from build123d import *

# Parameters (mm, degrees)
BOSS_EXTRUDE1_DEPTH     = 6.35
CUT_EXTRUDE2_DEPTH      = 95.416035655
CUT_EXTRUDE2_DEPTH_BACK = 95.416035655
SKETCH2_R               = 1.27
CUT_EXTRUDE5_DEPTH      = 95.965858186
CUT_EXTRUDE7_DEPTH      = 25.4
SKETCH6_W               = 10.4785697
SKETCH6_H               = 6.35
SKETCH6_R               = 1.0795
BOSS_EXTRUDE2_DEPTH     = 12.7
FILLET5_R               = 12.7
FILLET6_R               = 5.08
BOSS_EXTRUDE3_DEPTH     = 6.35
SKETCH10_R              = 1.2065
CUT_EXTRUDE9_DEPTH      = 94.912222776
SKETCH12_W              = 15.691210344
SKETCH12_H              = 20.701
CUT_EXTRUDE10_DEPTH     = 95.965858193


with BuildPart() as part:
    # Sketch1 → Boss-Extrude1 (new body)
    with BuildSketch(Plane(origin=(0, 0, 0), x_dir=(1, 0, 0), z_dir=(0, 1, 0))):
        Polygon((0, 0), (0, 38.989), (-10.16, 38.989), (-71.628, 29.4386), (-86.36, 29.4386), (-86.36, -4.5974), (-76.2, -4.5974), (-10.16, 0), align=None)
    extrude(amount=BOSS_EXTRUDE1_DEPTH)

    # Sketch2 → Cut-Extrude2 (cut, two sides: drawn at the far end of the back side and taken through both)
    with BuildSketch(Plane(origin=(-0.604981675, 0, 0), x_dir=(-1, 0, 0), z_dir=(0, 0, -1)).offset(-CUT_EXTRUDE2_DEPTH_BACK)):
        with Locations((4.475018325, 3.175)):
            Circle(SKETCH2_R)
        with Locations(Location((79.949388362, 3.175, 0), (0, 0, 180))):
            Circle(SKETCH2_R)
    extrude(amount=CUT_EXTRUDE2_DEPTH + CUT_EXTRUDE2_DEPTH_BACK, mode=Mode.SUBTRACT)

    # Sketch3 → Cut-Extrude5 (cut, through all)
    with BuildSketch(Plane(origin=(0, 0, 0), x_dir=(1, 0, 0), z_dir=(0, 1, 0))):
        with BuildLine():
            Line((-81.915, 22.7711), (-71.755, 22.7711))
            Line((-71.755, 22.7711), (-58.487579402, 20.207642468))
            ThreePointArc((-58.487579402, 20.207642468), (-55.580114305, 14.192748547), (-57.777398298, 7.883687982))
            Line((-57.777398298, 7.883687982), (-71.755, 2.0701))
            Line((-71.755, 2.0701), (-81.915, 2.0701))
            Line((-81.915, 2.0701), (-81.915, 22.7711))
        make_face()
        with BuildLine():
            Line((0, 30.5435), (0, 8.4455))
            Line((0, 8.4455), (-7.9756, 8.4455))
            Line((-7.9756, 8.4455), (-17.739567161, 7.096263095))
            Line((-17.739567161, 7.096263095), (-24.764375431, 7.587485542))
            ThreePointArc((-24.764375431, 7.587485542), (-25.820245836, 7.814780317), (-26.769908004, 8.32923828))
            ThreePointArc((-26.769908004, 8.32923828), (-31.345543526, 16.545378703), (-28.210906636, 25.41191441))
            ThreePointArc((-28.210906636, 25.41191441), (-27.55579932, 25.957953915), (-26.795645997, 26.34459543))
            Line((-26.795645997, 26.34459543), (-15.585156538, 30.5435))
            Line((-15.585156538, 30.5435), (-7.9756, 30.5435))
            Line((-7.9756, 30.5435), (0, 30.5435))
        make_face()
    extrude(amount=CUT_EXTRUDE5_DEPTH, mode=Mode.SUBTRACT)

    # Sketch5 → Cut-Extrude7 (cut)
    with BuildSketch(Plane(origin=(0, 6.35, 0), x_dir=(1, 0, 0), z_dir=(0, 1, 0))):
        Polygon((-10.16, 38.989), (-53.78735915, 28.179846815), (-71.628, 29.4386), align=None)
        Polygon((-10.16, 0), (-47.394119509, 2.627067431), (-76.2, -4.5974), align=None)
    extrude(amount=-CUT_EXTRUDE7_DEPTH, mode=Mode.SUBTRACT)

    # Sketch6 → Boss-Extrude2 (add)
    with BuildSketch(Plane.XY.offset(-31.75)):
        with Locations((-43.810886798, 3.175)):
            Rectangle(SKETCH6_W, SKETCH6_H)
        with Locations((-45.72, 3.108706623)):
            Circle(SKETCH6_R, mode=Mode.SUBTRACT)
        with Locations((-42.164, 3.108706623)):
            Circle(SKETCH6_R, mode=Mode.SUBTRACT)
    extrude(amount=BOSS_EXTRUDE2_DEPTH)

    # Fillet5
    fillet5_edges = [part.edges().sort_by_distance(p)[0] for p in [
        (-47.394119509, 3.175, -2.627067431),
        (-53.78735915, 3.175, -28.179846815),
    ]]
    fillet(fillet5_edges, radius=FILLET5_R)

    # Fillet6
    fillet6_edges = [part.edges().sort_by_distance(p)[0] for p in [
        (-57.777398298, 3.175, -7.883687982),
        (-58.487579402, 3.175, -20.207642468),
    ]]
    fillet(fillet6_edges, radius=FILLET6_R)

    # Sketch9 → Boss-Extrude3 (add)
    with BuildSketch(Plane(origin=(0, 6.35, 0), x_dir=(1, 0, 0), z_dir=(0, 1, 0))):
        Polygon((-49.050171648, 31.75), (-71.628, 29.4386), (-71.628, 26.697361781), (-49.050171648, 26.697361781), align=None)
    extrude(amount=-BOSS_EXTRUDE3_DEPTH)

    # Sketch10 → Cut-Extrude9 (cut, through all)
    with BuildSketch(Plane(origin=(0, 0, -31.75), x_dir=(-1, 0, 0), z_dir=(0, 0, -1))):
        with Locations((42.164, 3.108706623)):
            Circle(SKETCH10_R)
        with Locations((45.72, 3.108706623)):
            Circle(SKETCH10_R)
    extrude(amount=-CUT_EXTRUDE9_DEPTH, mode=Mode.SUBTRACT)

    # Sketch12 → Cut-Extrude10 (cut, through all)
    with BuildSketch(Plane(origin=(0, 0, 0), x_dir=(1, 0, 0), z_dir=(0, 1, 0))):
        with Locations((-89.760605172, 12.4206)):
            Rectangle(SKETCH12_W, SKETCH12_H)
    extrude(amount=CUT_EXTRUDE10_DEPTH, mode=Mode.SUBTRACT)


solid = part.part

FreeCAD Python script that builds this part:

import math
import FreeCAD as App
import Part
import Sketcher
from FreeCAD import Vector
Q = App.Units.Quantity


def edges_at(feature, points):
    """Names of the edges that pass closest to the given points."""
    edges = feature.Shape.Edges
    near = lambda p: min(range(len(edges)), key=lambda i: edges[i].distToShape(Part.Vertex(*p))[0])
    return sorted({f"Edge{near(p) + 1}" for p in points})


def add_polygon(sketch, points):
    """Adds a closed chain of lines whose ends are joined by coincident constraints."""
    first, n = sketch.GeometryCount, len(points)
    for a, b in zip(points, points[1:] + points[:1]):
        sketch.addGeometry(Part.LineSegment(App.Vector(*a, 0), App.Vector(*b, 0)), False)
    for i in range(n):
        sketch.addConstraint(Sketcher.Constraint("Coincident", first + i, 2, first + (i + 1) % n, 1))

doc = App.newDocument("Part")
params = doc.addObject("Spreadsheet::Sheet", "Params")
for row, (alias, value) in enumerate([
    ("sketch1_width", "0.4 in"),
    ("sketch1_width2", "0.58 in"),
    ("sketch1_height", "1.34 in"),
    ("sketch1_height2", "1.535 in"),
    ("pad1_length", "0.25 in"),
    ("sketch2_diameter", "0.1 in"),
    ("sketch3_radius", "0.15 in"),
    ("sketch3_radius2", "0.45 in"),
    ("sketch3_width", "0.4 in"),
    ("sketch3_height", "0.87 in"),
    ("sketch3_width2", "0.314 in"),
    ("pocket3_length", "1 in"),
    ("sketch5_diameter", "0.085 in"),
    ("sketch5_height", "0.25 in"),
    ("pad2_length", "0.5 in"),
    ("fillet_radius", "0.5 in"),
    ("fillet2_radius", "0.2 in"),
    ("pad3_length", "0.25 in"),
    ("sketch7_diameter", "0.095 in"),
    ("sketch8_height", "0.815 in"),
], start=1):
    params.set(f"A{row}", alias)
    params.set(f"B{row}", "=" + value)
    params.setAlias(f"B{row}", alias)

body = doc.addObject("PartDesign::Body", "Body")

# Sketch on XZ plane
sketch1 = body.newObject("Sketcher::SketchObject", "Sketch")
sketch1.AttachmentSupport = (doc.getObject("XZ_Plane"), [""])
sketch1.MapMode = "FlatFace"
add_polygon(sketch1, [(0, 0), (0, -39), (-10, -39), (-72, -29), (-86, -29), (-86, 5), (-76, 5), (-10, 0)])  # lines 0-7
sketch1.addConstraint(Sketcher.Constraint("Vertical", 0))
sketch1.addConstraint(Sketcher.Constraint("Horizontal", 1))
sketch1.addConstraint(Sketcher.Constraint("Horizontal", 3))
sketch1.addConstraint(Sketcher.Constraint("Vertical", 4))
sketch1.addConstraint(Sketcher.Constraint("Horizontal", 5))
sketch1.addConstraint(Sketcher.Constraint("Horizontal", 7))
sketch1.addConstraint(Sketcher.Constraint("Coincident", 7, 2, -1, 1))
sketch1.addConstraint(Sketcher.Constraint("Vertical", 1, 2, 6, 2))
sketch1.addConstraint(Sketcher.Constraint("Equal", 1, 5))
sketch1.addConstraint(Sketcher.Constraint("DistanceX", 1, 2, 1, 1, Q("0.4 in")))
sketch1.addConstraint(Sketcher.Constraint("DistanceX", 5, 2, -1, 1, Q("3 in")))
sketch1.addConstraint(Sketcher.Constraint("DistanceX", 3, 2, 3, 1, Q("0.58 in")))
sketch1.addConstraint(Sketcher.Constraint("DistanceY", 4, 1, 4, 2, Q("1.34 in")))
sketch1.addConstraint(Sketcher.Constraint("DistanceY", 0, 2, 0, 1, Q("1.535 in")))
sketch1.addConstraint(Sketcher.Constraint("DistanceY", 2, 2, -1, 1, Q("1.159 in")))
sketch1.setExpression("Constraints[17]", "Params.sketch1_width")
sketch1.setExpression("Constraints[19]", "Params.sketch1_width2")
sketch1.setExpression("Constraints[20]", "Params.sketch1_height")
sketch1.setExpression("Constraints[21]", "Params.sketch1_height2")
pad1 = body.newObject("PartDesign::Pad", "Pad")
pad1.Profile = sketch1
pad1.setExpression("Length", "Params.pad1_length")
pad1.Reversed = True

# Sketch on XY plane
sketch2 = body.newObject("Sketcher::SketchObject", "Sketch001")
sketch2.AttachmentSupport = (doc.getObject("XY_Plane"), [""])
sketch2.MapMode = "FlatFace"
sketch2.addGeometry(Part.Circle(Vector(-5.1, 3.2, 0), Vector(0, 0, 1), 1.3), False)
sketch2.addGeometry(Part.Circle(Vector(-80.6, 3.2, 0), Vector(0, 0, 1), 1.3), False)
sketch2.addConstraint(Sketcher.Constraint("Equal", 0, 1))
sketch2.addConstraint(Sketcher.Constraint("Horizontal", 0, 3, 1, 3))
sketch2.addConstraint(Sketcher.Constraint("Diameter", 0, Q("0.1 in")))
sketch2.addConstraint(Sketcher.Constraint("DistanceX", 0, 3, -1, 1, Q("0.2 in")))
sketch2.addConstraint(Sketcher.Constraint("DistanceY", -1, 1, 0, 3, Q("0.125 in")))
sketch2.addConstraint(Sketcher.Constraint("DistanceX", 1, 3, -1, 1, 80.55437))
sketch2.setExpression("Constraints[2]", "Params.sketch2_diameter")
pocket1 = body.newObject("PartDesign::Pocket", "Pocket")
pocket1.Profile = sketch2
pocket1.Type = "ThroughAll"
pocket1.Midplane = True

# Sketch on XZ plane
sketch3 = body.newObject("Sketcher::SketchObject", "Sketch002")
sketch3.AttachmentSupport = (doc.getObject("XZ_Plane"), [""])
sketch3.MapMode = "FlatFace"
sketch3.addGeometry(Part.LineSegment(Vector(-71.8, -22.8, 0), Vector(-81.9, -22.8, 0)), False)
sketch3.addGeometry(Part.LineSegment(Vector(-81.9, -22.8, 0), Vector(-81.9, -2.1, 0)), False)
sketch3.addGeometry(Part.LineSegment(Vector(-81.9, -2.1, 0), Vector(-71.8, -2.1, 0)), False)
sketch3.addGeometry(Part.LineSegment(Vector(-71.8, -2.1, 0), Vector(-57.8, -7.9, 0)), False)
sketch3.addGeometry(Part.ArcOfCircle(Part.Circle(Vector(-64.3, -13.7, 0), Vector(0, 0, 1), 8.7), math.radians(-48), math.radians(42)), False)
sketch3.addGeometry(Part.LineSegment(Vector(-58.5, -20.2, 0), Vector(-71.8, -22.8, 0)), False)
sketch3.addGeometry(Part.LineSegment(Vector(0, -8.4, 0), Vector(0, -30.5, 0)), False)
sketch3.addGeometry(Part.LineSegment(Vector(0, -30.5, 0), Vector(-15.6, -30.5, 0)), False)
sketch3.addGeometry(Part.LineSegment(Vector(-15.6, -30.5, 0), Vector(-26.8, -26.3, 0)), False)
sketch3.addGeometry(Part.ArcOfCircle(Part.Circle(Vector(-25.5, -22.8, 0), Vector(0, 0, 1), 3.8), math.radians(-136), math.radians(-111)), False)
sketch3.addGeometry(Part.ArcOfCircle(Part.Circle(Vector(-20, -17.5, 0), Vector(0, 0, 1), 11.4), math.radians(127), math.radians(224)), False)
sketch3.addGeometry(Part.ArcOfCircle(Part.Circle(Vector(-24.5, -11.4, 0), Vector(0, 0, 1), 3.8), math.radians(94), math.radians(127)), False)
sketch3.addGeometry(Part.LineSegment(Vector(-24.8, -7.6, 0), Vector(-17.7, -7.1, 0)), False)
sketch3.addGeometry(Part.LineSegment(Vector(-17.7, -7.1, 0), Vector(-8, -8.4, 0)), False)
sketch3.addGeometry(Part.LineSegment(Vector(-8, -8.4, 0), Vector(0, -8.4, 0)), False)
sketch3.addConstraint(Sketcher.Constraint("Coincident", 0, 2, 1, 1))
sketch3.addConstraint(Sketcher.Constraint("Coincident", 1, 2, 2, 1))
sketch3.addConstraint(Sketcher.Constraint("Coincident", 2, 2, 3, 1))
sketch3.addConstraint(Sketcher.Constraint("Coincident", 3, 2, 4, 2))
sketch3.addConstraint(Sketcher.Constraint("Coincident", 4, 1, 5, 1))
sketch3.addConstraint(Sketcher.Constraint("Coincident", 5, 2, 0, 1))
sketch3.addConstraint(Sketcher.Constraint("Coincident", 6, 2, 7, 1))
sketch3.addConstraint(Sketcher.Constraint("Coincident", 7, 2, 8, 1))
sketch3.addConstraint(Sketcher.Constraint("Tangent", 8, 2, 9, 2))
sketch3.addConstraint(Sketcher.Constraint("Tangent", 9, 1, 10, 2))
sketch3.addConstraint(Sketcher.Constraint("Tangent", 10, 1, 11, 2))
sketch3.addConstraint(Sketcher.Constraint("Tangent", 11, 1, 12, 1))
sketch3.addConstraint(Sketcher.Constraint("Coincident", 12, 2, 13, 1))
sketch3.addConstraint(Sketcher.Constraint("Coincident", 13, 2, 14, 1))
sketch3.addConstraint(Sketcher.Constraint("Coincident", 14, 2, 6, 1))
sketch3.addConstraint(Sketcher.Constraint("Horizontal", 0))
sketch3.addConstraint(Sketcher.Constraint("Vertical", 1))
sketch3.addConstraint(Sketcher.Constraint("Horizontal", 2))
sketch3.addConstraint(Sketcher.Constraint("Vertical", 6))
sketch3.addConstraint(Sketcher.Constraint("Horizontal", 7))
sketch3.addConstraint(Sketcher.Constraint("Horizontal", 14))
sketch3.addConstraint(Sketcher.Constraint("Equal", 9, 11))
sketch3.addConstraint(Sketcher.Constraint("PointOnObject", 6, 2, -2))
sketch3.addConstraint(Sketcher.Constraint("Vertical", 2, 2, 5, 2))
sketch3.addConstraint(Sketcher.Constraint("Radius", 9, Q("0.15 in")))
sketch3.addConstraint(Sketcher.Constraint("Radius", 10, Q("0.45 in")))
sketch3.addConstraint(Sketcher.Constraint("DistanceX", 0, 2, 0, 1, Q("0.4 in")))
sketch3.addConstraint(Sketcher.Constraint("Angle", 12, Q("4 deg")))
sketch3.addConstraint(Sketcher.Constraint("DistanceY", 6, 2, 6, 1, Q("0.87 in")))
sketch3.addConstraint(Sketcher.Constraint("DistanceX", 14, 1, 14, 2, Q("0.314 in")))
sketch3.addConstraint(Sketcher.Constraint("DistanceY", 1, 1, 1, 2, Q("0.815 in")))
sketch3.addConstraint(Sketcher.Constraint("Distance", 3, Q("0.596 in")))
sketch3.addConstraint(Sketcher.Constraint("Distance", 5, Q("0.532 in")))
sketch3.addConstraint(Sketcher.Constraint("DistanceX", 0, 2, -1, 1, Q("3.225 in")))
sketch3.addConstraint(Sketcher.Constraint("Radius", 4, 8.728809))
sketch3.addConstraint(Sketcher.Constraint("DistanceY", 0, 2, -1, 1, Q("0.8965 in")))
sketch3.addConstraint(Sketcher.Constraint("DistanceY", 6, 2, -1, 1, Q("1.2025 in")))
sketch3.addConstraint(Sketcher.Constraint("DistanceX", 10, 1, 9, 3, Q("0.0516 in")))
sketch3.addConstraint(Sketcher.Constraint("DistanceX", 3, 2, -1, 1, 57.777398))
sketch3.addConstraint(Sketcher.Constraint("DistanceY", 10, 3, 10, 1, 9.176899))
sketch3.addConstraint(Sketcher.Constraint("DistanceX", 9, 3, 12, 2, 7.719702))
sketch3.addConstraint(Sketcher.Constraint("Distance", 13, 9.856749))
sketch3.addConstraint(Sketcher.Constraint("DistanceX", 7, 2, 7, 1, 15.585157))
sketch3.addConstraint(Sketcher.Constraint("DistanceX", 9, 3, -1, 1, 25.459269))
sketch3.addConstraint(Sketcher.Constraint("DistanceX", 4, 1, -1, 1, 58.487579))
sketch3.setExpression("Constraints[24]", "Params.sketch3_radius")
sketch3.setExpression("Constraints[25]", "Params.sketch3_radius2")
sketch3.setExpression("Constraints[26]", "Params.sketch3_width")
sketch3.setExpression("Constraints[28]", "Params.sketch3_height")
sketch3.setExpression("Constraints[29]", "Params.sketch3_width2")
pocket2 = body.newObject("PartDesign::Pocket", "Pocket001")
pocket2.Profile = sketch3
pocket2.Type = "ThroughAll"

# Sketch on XZ plane
sketch4 = body.newObject("Sketcher::SketchObject", "Sketch003")
sketch4.AttachmentSupport = (doc.getObject("XZ_Plane"), [""])
sketch4.MapMode = "FlatFace"
sketch4.AttachmentOffset = App.Placement(Vector(0, 0, -0.25 * 25.4), App.Rotation())
add_polygon(sketch4, [(-54, -28), (-10, -39), (-72, -29)])  # lines 0-2
add_polygon(sketch4, [(-10, 0), (-47, -3), (-76, 5)])  # lines 3-5
sketch4.addConstraint(Sketcher.Constraint("PointOnObject", 5, 2, -1))
sketch4.addConstraint(Sketcher.Constraint("Parallel", 2, 3))
sketch4.addConstraint(Sketcher.Constraint("Vertical", 0, 2, 5, 2))
sketch4.addConstraint(Sketcher.Constraint("DistanceX", 4, 2, -1, 1, Q("3 in")))
sketch4.addConstraint(Sketcher.Constraint("DistanceX", 0, 2, -1, 1, Q("0.4 in")))
sketch4.addConstraint(Sketcher.Constraint("DistanceX", 1, 2, -1, 1, Q("2.82 in")))
sketch4.addConstraint(Sketcher.Constraint("DistanceY", 1, 2, 4, 2, Q("1.34 in")))
sketch4.addConstraint(Sketcher.Constraint("DistanceY", 0, 2, -1, 1, Q("1.535 in")))
sketch4.addConstraint(Sketcher.Constraint("DistanceY", 1, 2, -1, 1, Q("1.159 in")))
sketch4.addConstraint(Sketcher.Constraint("Distance", 0, 44.94646))
sketch4.addConstraint(Sketcher.Constraint("Distance", 2, 17.884992))
sketch4.addConstraint(Sketcher.Constraint("Distance", 3, 37.326681))
pocket3 = body.newObject("PartDesign::Pocket", "Pocket002")
pocket3.Profile = sketch4
pocket3.setExpression("Length", "Params.pocket3_length")
pocket3.Reversed = True

# Sketch on XY plane
sketch5 = body.newObject("Sketcher::SketchObject", "Sketch004")
sketch5.AttachmentSupport = (doc.getObject("XY_Plane"), [""])
sketch5.MapMode = "FlatFace"
sketch5.AttachmentOffset = App.Placement(Vector(0, 0, -1.25 * 25.4), App.Rotation())
add_polygon(sketch5, [(-49.1, 6.3), (-49.1, 0), (-38.6, 0), (-38.6, 6.3)])  # lines 0-3
sketch5.addGeometry(Part.Circle(Vector(-45.7, 3.1, 0), Vector(0, 0, 1), 1.1), False)  # 4
sketch5.addGeometry(Part.Circle(Vector(-42.2, 3.1, 0), Vector(0, 0, 1), 1.1), False)  # 5
sketch5.addConstraint(Sketcher.Constraint("Vertical", 0))
sketch5.addConstraint(Sketcher.Constraint("Horizontal", 1))
sketch5.addConstraint(Sketcher.Constraint("Vertical", 2))
sketch5.addConstraint(Sketcher.Constraint("Horizontal", 3))
sketch5.addConstraint(Sketcher.Constraint("Equal", 4, 5))
sketch5.addConstraint(Sketcher.Constraint("PointOnObject", 0, 2, -1))
sketch5.addConstraint(Sketcher.Constraint("Horizontal", 4, 3, 5, 3))
sketch5.addConstraint(Sketcher.Constraint("Diameter", 4, Q("0.085 in")))
sketch5.addConstraint(Sketcher.Constraint("DistanceY", 0, 2, 0, 1, Q("0.25 in")))
sketch5.addConstraint(Sketcher.Constraint("DistanceX", 4, 3, -1, 1, Q("1.8 in")))
sketch5.addConstraint(Sketcher.Constraint("DistanceX", 5, 3, -1, 1, Q("1.66 in")))
sketch5.addConstraint(Sketcher.Constraint("DistanceX", 1, 1, 1, 2, 10.47857))
sketch5.addConstraint(Sketcher.Constraint("DistanceX", 1, 2, -1, 1, 38.571602))
sketch5.addConstraint(Sketcher.Constraint("DistanceY", -1, 1, 4, 3, 3.108707))
sketch5.setExpression("Constraints[11]", "Params.sketch5_diameter")
sketch5.setExpression("Constraints[12]", "Params.sketch5_height")
pad2 = body.newObject("PartDesign::Pad", "Pad001")
pad2.Profile = sketch5
pad2.setExpression("Length", "Params.pad2_length")
doc.recompute()

fillet = body.newObject("PartDesign::Fillet", "Fillet")
fillet.Base = (pad2, edges_at(pad2, [(-47.394, 3.175, -2.627), (-53.787, 3.175, -28.18)]))
fillet.setExpression("Radius", "Params.fillet_radius")
doc.recompute()

fillet2 = body.newObject("PartDesign::Fillet", "Fillet001")
fillet2.Base = (fillet, edges_at(fillet, [(-57.777, 3.175, -7.884), (-58.488, 3.175, -20.208)]))
fillet2.setExpression("Radius", "Params.fillet2_radius")

# Sketch on XZ plane
sketch6 = body.newObject("Sketcher::SketchObject", "Sketch005")
sketch6.AttachmentSupport = (doc.getObject("XZ_Plane"), [""])
sketch6.MapMode = "FlatFace"
sketch6.AttachmentOffset = App.Placement(Vector(0, 0, -0.25 * 25.4), App.Rotation())
add_polygon(sketch6, [(-49.1, -31.8), (-71.6, -29.4), (-71.6, -26.7), (-49.1, -26.7)])  # lines 0-3
sketch6.addConstraint(Sketcher.Constraint("Vertical", 1))
sketch6.addConstraint(Sketcher.Constraint("Horizontal", 2))
sketch6.addConstraint(Sketcher.Constraint("Vertical", 3))
sketch6.addConstraint(Sketcher.Constraint("DistanceX", 0, 2, -1, 1, Q("2.82 in")))
sketch6.addConstraint(Sketcher.Constraint("DistanceY", 3, 2, -1, 1, Q("1.25 in")))
sketch6.addConstraint(Sketcher.Constraint("DistanceY", 0, 2, -1, 1, Q("1.159 in")))
sketch6.addConstraint(Sketcher.Constraint("DistanceX", 2, 1, 2, 2, 22.577828))
sketch6.addConstraint(Sketcher.Constraint("DistanceY", 1, 1, 1, 2, 2.741238))
pad3 = body.newObject("PartDesign::Pad", "Pad002")
pad3.Profile = sketch6
pad3.setExpression("Length", "Params.pad3_length")

# Sketch on XY plane
sketch7 = body.newObject("Sketcher::SketchObject", "Sketch006")
sketch7.AttachmentSupport = (doc.getObject("XY_Plane"), [""])
sketch7.MapMode = "FlatFace"
sketch7.AttachmentOffset = App.Placement(Vector(0, 0, -1.25 * 25.4), App.Rotation())
sketch7.addGeometry(Part.Circle(Vector(-42.2, 3.1, 0), Vector(0, 0, 1), 1.2), False)
sketch7.addGeometry(Part.Circle(Vector(-45.7, 3.1, 0), Vector(0, 0, 1), 1.2), False)
sketch7.addConstraint(Sketcher.Constraint("Equal", 0, 1))
sketch7.addConstraint(Sketcher.Constraint("Horizontal", 0, 3, 1, 3))
sketch7.addConstraint(Sketcher.Constraint("Diameter", 0, Q("0.095 in")))
sketch7.addConstraint(Sketcher.Constraint("DistanceX", 1, 3, -1, 1, Q("1.8 in")))
sketch7.addConstraint(Sketcher.Constraint("DistanceX", 0, 3, -1, 1, Q("1.66 in")))
sketch7.addConstraint(Sketcher.Constraint("DistanceY", -1, 1, 0, 3, 3.108707))
sketch7.setExpression("Constraints[2]", "Params.sketch7_diameter")
pocket4 = body.newObject("PartDesign::Pocket", "Pocket003")
pocket4.Profile = sketch7
pocket4.Type = "ThroughAll"
pocket4.Reversed = True

# Sketch on XZ plane
sketch8 = body.newObject("Sketcher::SketchObject", "Sketch007")
sketch8.AttachmentSupport = (doc.getObject("XZ_Plane"), [""])
sketch8.MapMode = "FlatFace"
add_polygon(sketch8, [(-98, -23), (-98, -2), (-82, -2), (-82, -23)])  # lines 0-3
sketch8.addConstraint(Sketcher.Constraint("Vertical", 0))
sketch8.addConstraint(Sketcher.Constraint("Horizontal", 1))
sketch8.addConstraint(Sketcher.Constraint("Vertical", 2))
sketch8.addConstraint(Sketcher.Constraint("Horizontal", 3))
sketch8.addConstraint(Sketcher.Constraint("DistanceY", 0, 1, 0, 2, Q("0.815 in")))
sketch8.addConstraint(Sketcher.Constraint("DistanceX", 1, 2, -1, 1, Q("3.225 in")))
sketch8.addConstraint(Sketcher.Constraint("DistanceY", 0, 2, -1, 1, Q("0.0815 in")))
sketch8.addConstraint(Sketcher.Constraint("DistanceX", 1, 1, 1, 2, 15.69121))
sketch8.setExpression("Constraints[8]", "Params.sketch8_height")
pocket5 = body.newObject("PartDesign::Pocket", "Pocket004")
pocket5.Profile = sketch8
pocket5.Type = "ThroughAll"

doc.recompute()
